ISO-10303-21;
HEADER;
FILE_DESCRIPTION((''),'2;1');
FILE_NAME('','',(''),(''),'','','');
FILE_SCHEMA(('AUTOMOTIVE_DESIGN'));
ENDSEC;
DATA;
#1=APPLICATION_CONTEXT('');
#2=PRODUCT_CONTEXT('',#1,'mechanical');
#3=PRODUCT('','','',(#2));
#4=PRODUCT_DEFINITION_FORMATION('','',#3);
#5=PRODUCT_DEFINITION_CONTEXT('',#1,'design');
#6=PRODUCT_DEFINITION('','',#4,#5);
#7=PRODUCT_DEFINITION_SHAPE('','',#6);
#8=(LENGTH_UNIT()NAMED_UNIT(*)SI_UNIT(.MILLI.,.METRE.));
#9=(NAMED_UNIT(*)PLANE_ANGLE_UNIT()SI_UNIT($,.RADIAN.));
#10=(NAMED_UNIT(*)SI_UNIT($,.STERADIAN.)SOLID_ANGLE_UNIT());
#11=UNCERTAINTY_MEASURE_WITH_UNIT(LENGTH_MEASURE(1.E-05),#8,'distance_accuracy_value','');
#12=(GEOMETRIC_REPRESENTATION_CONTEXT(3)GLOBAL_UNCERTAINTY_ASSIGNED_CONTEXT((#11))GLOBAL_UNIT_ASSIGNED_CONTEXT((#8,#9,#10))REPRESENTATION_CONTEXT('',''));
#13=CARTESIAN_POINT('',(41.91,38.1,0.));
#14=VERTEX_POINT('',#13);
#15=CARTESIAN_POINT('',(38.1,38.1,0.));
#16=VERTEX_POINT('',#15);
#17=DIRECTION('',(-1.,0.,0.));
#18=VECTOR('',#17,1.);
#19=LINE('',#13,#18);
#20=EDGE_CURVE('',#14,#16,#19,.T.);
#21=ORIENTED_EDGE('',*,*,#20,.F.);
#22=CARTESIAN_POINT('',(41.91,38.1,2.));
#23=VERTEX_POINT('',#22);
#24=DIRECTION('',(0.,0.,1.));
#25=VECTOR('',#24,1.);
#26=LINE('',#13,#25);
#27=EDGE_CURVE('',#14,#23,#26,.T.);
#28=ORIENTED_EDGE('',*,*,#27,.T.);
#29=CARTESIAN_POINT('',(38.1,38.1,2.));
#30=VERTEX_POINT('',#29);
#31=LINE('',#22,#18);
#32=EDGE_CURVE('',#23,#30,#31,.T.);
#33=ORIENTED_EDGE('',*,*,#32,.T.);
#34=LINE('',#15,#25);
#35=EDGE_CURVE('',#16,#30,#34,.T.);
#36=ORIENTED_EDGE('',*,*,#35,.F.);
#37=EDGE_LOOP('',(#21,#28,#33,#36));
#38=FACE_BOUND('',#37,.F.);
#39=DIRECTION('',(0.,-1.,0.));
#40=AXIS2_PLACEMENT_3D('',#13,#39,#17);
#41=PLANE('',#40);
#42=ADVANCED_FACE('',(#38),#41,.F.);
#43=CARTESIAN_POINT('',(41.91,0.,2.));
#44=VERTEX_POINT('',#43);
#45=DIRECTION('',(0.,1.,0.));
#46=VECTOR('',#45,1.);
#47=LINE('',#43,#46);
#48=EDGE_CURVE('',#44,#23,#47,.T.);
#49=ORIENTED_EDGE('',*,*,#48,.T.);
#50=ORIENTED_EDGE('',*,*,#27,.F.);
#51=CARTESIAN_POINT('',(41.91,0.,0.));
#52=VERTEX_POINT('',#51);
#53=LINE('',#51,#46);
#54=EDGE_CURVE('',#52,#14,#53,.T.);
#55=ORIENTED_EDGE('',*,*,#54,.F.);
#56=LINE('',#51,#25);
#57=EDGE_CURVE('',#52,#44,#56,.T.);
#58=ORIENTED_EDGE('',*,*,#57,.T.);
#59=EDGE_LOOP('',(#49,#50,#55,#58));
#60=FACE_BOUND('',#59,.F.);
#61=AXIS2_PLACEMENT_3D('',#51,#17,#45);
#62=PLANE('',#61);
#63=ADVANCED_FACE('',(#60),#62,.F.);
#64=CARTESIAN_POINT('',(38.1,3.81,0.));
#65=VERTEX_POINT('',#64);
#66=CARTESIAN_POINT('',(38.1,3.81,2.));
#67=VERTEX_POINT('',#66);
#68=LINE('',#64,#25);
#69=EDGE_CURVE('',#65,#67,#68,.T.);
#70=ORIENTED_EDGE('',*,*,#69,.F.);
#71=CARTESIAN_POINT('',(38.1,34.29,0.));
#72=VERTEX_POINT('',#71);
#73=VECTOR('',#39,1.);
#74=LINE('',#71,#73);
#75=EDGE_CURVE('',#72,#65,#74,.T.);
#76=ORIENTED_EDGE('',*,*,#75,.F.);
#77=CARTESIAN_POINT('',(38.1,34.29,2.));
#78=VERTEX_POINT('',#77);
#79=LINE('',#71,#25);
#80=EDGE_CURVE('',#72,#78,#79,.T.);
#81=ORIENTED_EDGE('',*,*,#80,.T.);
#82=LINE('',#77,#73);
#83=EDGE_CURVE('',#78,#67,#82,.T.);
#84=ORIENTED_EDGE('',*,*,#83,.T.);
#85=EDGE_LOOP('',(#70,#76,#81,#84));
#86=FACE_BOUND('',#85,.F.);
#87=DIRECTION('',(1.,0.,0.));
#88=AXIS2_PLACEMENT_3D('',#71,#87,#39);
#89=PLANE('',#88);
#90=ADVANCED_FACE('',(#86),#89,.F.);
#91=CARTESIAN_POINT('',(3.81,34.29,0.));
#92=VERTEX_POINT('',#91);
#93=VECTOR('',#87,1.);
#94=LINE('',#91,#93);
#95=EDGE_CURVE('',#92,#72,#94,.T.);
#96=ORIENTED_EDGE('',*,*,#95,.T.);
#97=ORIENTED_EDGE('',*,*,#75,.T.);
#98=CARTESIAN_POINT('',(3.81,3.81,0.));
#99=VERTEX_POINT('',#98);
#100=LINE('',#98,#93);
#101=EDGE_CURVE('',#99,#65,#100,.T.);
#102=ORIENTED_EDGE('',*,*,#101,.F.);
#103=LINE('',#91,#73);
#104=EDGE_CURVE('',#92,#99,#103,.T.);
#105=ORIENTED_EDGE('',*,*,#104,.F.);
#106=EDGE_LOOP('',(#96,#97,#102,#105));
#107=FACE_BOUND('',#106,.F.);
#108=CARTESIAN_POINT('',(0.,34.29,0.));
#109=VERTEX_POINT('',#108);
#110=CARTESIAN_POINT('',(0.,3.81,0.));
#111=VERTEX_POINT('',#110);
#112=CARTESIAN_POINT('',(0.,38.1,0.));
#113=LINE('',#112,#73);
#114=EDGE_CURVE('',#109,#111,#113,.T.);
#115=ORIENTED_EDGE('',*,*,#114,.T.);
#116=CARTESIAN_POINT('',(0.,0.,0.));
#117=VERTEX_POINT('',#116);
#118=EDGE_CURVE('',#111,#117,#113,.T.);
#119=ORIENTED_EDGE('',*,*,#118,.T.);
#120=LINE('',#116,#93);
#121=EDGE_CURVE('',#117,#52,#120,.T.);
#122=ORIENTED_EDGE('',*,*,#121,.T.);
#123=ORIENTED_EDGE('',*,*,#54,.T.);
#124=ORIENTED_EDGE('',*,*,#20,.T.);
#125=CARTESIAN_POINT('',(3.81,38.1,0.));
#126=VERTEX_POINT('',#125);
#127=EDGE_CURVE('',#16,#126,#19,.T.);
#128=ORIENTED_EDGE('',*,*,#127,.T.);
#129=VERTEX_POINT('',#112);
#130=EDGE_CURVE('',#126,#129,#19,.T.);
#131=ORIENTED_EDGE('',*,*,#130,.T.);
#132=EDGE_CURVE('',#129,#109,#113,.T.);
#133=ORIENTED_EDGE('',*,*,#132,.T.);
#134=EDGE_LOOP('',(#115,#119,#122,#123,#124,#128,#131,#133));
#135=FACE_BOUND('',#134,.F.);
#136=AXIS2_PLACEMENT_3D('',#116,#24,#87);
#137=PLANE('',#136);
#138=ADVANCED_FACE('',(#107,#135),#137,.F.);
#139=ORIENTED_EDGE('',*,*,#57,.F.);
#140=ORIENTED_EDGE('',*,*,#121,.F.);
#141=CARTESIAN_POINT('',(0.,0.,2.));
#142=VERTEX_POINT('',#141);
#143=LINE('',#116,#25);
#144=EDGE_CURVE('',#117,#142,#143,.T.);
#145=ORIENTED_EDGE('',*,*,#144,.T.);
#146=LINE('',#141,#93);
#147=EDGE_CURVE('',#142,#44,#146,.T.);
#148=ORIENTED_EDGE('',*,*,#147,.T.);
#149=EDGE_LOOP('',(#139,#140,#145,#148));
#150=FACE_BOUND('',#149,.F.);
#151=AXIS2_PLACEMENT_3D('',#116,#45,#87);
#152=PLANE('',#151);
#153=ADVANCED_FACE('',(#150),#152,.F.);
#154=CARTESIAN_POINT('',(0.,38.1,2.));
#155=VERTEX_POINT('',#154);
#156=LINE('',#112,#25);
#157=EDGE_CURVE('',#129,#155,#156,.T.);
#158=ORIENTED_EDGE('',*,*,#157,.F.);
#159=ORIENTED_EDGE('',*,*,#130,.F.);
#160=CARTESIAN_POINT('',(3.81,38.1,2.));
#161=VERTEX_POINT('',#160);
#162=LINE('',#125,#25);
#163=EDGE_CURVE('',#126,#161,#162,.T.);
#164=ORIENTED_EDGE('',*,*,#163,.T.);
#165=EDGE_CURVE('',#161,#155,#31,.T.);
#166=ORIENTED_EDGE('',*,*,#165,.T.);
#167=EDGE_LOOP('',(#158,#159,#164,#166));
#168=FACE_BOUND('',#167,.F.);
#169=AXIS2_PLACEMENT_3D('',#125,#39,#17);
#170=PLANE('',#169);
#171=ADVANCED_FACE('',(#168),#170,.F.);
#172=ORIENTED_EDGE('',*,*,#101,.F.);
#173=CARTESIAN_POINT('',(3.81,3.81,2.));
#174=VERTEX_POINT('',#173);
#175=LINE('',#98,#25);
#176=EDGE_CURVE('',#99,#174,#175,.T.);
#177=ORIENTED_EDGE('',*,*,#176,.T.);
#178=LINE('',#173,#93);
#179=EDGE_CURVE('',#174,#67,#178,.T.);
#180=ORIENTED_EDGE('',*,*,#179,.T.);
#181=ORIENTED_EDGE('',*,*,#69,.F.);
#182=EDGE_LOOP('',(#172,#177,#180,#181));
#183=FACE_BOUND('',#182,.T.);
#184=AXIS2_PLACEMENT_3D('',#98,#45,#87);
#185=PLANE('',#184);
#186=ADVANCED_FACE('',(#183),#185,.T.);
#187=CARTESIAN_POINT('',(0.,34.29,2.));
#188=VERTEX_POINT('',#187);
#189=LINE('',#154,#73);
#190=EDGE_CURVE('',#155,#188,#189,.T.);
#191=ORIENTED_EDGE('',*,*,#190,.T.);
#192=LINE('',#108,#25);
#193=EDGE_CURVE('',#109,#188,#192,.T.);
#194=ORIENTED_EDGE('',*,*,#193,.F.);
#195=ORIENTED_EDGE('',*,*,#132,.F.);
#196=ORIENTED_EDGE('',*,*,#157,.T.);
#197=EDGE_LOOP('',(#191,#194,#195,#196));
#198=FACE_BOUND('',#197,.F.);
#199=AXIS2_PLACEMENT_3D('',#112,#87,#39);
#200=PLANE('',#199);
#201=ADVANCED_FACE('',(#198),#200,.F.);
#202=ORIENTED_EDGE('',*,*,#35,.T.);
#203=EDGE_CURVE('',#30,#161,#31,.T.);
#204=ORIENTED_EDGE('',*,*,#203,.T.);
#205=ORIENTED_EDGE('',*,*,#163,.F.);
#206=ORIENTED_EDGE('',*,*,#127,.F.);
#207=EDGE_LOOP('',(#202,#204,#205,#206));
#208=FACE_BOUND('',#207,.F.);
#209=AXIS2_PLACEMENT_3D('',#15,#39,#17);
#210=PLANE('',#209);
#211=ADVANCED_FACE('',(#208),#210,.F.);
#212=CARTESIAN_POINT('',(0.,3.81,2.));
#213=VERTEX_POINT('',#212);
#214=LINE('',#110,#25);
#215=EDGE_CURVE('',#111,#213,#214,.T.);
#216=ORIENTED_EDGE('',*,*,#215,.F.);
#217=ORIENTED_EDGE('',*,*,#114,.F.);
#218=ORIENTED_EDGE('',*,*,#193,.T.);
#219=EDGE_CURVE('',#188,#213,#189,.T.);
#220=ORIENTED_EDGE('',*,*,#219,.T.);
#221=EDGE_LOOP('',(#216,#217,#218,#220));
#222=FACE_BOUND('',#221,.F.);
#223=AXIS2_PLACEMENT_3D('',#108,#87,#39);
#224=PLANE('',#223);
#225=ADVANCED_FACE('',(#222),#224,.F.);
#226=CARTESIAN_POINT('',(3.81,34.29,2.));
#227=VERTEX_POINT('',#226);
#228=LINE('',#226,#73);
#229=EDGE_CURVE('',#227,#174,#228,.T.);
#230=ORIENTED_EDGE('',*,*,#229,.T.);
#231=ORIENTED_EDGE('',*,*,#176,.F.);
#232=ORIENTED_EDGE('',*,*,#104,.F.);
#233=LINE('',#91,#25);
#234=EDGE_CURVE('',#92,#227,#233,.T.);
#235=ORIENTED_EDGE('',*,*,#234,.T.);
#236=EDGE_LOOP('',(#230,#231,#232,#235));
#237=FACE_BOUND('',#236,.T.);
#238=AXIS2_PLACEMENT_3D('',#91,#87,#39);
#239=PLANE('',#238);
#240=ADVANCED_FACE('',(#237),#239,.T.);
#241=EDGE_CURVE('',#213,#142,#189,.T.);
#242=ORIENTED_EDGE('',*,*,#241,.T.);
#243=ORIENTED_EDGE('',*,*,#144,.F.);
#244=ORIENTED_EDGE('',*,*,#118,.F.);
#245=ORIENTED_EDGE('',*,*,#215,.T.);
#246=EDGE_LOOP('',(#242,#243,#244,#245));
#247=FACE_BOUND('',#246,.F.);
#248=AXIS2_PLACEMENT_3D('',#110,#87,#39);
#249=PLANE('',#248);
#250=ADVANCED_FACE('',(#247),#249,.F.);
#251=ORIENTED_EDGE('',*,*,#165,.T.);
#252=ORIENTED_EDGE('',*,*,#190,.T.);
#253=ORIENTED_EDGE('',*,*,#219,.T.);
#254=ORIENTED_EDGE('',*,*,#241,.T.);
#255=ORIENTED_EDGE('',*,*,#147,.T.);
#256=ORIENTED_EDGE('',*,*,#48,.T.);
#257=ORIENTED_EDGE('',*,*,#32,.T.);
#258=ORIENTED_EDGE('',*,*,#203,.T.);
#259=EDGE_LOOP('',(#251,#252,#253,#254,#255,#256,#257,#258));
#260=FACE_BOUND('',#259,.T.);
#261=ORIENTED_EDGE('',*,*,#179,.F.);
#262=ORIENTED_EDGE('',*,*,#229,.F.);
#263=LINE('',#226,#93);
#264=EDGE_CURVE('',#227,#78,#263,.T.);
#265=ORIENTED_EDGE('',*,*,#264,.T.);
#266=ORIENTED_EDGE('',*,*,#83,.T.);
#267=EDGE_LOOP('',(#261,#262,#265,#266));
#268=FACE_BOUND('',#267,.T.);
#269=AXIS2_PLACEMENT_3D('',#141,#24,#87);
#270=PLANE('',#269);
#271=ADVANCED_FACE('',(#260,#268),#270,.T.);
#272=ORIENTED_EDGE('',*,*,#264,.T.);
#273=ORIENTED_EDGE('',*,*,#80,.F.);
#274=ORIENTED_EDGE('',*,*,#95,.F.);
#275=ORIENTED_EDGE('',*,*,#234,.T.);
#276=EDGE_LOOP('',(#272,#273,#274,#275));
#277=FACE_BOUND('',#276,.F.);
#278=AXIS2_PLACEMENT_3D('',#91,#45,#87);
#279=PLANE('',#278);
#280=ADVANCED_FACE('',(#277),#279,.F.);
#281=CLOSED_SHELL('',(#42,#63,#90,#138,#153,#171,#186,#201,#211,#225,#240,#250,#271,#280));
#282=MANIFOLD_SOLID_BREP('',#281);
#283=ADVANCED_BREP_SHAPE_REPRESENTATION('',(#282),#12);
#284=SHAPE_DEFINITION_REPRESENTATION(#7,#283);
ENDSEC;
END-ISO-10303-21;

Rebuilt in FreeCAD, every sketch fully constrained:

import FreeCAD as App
import Part
import Sketcher
Q = App.Units.Quantity


def add_polygon(sketch, points):
    """Adds a closed chain of lines whose ends are joined by coincident constraints."""
    first, n = sketch.GeometryCount, len(points)
    for a, b in zip(points, points[1:] + points[:1]):
        sketch.addGeometry(Part.LineSegment(App.Vector(*a, 0), App.Vector(*b, 0)), False)
    for i in range(n):
        sketch.addConstraint(Sketcher.Constraint("Coincident", first + i, 2, first + (i + 1) % n, 1))

doc = App.newDocument("Part")
params = doc.addObject("Spreadsheet::Sheet", "Params")
for row, (alias, value) in enumerate([
    ("sketch1_height", "1.5 in"),
    ("sketch1_width", "1.65 in"),
    ("pad1_length", "2 mm"),
], start=1):
    params.set(f"A{row}", alias)
    params.set(f"B{row}", "=" + value)
    params.setAlias(f"B{row}", alias)

body = doc.addObject("PartDesign::Body", "Body")

# Sketch on XY plane
sketch1 = doc.addObject("Sketcher::SketchObject", "Sketch")
body.addObject(sketch1)
sketch1.AttachmentSupport = (doc.XY_Plane, [""])
sketch1.MapMode = "FlatFace"
add_polygon(sketch1, [(0, 38), (0, 0), (42, 0), (42, 38)])  # lines 0-3
add_polygon(sketch1, [(4, 4), (4, 34), (38, 34), (38, 4)])  # lines 4-7
sketch1.addConstraint(Sketcher.Constraint("Vertical", 0))
sketch1.addConstraint(Sketcher.Constraint("Horizontal", 1))
sketch1.addConstraint(Sketcher.Constraint("Vertical", 2))
sketch1.addConstraint(Sketcher.Constraint("Horizontal", 3))
sketch1.addConstraint(Sketcher.Constraint("Vertical", 4))
sketch1.addConstraint(Sketcher.Constraint("Horizontal", 5))
sketch1.addConstraint(Sketcher.Constraint("Vertical", 6))
sketch1.addConstraint(Sketcher.Constraint("Horizontal", 7))
sketch1.addConstraint(Sketcher.Constraint("Coincident", 0, 2, -1, 1))
sketch1.addConstraint(Sketcher.Constraint("DistanceY", 0, 2, 0, 1, Q("1.5 in")))
sketch1.addConstraint(Sketcher.Constraint("DistanceX", 1, 1, 1, 2, Q("1.65 in")))
sketch1.addConstraint(Sketcher.Constraint("DistanceX", -1, 1, 5, 2, Q("1.5 in")))
sketch1.addConstraint(Sketcher.Constraint("DistanceX", 4, 2, 2, 2, Q("1.5 in")))
sketch1.addConstraint(Sketcher.Constraint("DistanceY", -1, 1, 6, 2, Q("0.15 in")))
sketch1.addConstraint(Sketcher.Constraint("DistanceY", 4, 2, 3, 2, Q("0.15 in")))
sketch1.setExpression("Constraints[17]", "Params.sketch1_height")
sketch1.setExpression("Constraints[18]", "Params.sketch1_width")
pad1 = doc.addObject("PartDesign::Pad", "Pad")
body.addObject(pad1)
pad1.Profile = sketch1
pad1.setExpression("Length", "Params.pad1_length")

doc.recompute()
